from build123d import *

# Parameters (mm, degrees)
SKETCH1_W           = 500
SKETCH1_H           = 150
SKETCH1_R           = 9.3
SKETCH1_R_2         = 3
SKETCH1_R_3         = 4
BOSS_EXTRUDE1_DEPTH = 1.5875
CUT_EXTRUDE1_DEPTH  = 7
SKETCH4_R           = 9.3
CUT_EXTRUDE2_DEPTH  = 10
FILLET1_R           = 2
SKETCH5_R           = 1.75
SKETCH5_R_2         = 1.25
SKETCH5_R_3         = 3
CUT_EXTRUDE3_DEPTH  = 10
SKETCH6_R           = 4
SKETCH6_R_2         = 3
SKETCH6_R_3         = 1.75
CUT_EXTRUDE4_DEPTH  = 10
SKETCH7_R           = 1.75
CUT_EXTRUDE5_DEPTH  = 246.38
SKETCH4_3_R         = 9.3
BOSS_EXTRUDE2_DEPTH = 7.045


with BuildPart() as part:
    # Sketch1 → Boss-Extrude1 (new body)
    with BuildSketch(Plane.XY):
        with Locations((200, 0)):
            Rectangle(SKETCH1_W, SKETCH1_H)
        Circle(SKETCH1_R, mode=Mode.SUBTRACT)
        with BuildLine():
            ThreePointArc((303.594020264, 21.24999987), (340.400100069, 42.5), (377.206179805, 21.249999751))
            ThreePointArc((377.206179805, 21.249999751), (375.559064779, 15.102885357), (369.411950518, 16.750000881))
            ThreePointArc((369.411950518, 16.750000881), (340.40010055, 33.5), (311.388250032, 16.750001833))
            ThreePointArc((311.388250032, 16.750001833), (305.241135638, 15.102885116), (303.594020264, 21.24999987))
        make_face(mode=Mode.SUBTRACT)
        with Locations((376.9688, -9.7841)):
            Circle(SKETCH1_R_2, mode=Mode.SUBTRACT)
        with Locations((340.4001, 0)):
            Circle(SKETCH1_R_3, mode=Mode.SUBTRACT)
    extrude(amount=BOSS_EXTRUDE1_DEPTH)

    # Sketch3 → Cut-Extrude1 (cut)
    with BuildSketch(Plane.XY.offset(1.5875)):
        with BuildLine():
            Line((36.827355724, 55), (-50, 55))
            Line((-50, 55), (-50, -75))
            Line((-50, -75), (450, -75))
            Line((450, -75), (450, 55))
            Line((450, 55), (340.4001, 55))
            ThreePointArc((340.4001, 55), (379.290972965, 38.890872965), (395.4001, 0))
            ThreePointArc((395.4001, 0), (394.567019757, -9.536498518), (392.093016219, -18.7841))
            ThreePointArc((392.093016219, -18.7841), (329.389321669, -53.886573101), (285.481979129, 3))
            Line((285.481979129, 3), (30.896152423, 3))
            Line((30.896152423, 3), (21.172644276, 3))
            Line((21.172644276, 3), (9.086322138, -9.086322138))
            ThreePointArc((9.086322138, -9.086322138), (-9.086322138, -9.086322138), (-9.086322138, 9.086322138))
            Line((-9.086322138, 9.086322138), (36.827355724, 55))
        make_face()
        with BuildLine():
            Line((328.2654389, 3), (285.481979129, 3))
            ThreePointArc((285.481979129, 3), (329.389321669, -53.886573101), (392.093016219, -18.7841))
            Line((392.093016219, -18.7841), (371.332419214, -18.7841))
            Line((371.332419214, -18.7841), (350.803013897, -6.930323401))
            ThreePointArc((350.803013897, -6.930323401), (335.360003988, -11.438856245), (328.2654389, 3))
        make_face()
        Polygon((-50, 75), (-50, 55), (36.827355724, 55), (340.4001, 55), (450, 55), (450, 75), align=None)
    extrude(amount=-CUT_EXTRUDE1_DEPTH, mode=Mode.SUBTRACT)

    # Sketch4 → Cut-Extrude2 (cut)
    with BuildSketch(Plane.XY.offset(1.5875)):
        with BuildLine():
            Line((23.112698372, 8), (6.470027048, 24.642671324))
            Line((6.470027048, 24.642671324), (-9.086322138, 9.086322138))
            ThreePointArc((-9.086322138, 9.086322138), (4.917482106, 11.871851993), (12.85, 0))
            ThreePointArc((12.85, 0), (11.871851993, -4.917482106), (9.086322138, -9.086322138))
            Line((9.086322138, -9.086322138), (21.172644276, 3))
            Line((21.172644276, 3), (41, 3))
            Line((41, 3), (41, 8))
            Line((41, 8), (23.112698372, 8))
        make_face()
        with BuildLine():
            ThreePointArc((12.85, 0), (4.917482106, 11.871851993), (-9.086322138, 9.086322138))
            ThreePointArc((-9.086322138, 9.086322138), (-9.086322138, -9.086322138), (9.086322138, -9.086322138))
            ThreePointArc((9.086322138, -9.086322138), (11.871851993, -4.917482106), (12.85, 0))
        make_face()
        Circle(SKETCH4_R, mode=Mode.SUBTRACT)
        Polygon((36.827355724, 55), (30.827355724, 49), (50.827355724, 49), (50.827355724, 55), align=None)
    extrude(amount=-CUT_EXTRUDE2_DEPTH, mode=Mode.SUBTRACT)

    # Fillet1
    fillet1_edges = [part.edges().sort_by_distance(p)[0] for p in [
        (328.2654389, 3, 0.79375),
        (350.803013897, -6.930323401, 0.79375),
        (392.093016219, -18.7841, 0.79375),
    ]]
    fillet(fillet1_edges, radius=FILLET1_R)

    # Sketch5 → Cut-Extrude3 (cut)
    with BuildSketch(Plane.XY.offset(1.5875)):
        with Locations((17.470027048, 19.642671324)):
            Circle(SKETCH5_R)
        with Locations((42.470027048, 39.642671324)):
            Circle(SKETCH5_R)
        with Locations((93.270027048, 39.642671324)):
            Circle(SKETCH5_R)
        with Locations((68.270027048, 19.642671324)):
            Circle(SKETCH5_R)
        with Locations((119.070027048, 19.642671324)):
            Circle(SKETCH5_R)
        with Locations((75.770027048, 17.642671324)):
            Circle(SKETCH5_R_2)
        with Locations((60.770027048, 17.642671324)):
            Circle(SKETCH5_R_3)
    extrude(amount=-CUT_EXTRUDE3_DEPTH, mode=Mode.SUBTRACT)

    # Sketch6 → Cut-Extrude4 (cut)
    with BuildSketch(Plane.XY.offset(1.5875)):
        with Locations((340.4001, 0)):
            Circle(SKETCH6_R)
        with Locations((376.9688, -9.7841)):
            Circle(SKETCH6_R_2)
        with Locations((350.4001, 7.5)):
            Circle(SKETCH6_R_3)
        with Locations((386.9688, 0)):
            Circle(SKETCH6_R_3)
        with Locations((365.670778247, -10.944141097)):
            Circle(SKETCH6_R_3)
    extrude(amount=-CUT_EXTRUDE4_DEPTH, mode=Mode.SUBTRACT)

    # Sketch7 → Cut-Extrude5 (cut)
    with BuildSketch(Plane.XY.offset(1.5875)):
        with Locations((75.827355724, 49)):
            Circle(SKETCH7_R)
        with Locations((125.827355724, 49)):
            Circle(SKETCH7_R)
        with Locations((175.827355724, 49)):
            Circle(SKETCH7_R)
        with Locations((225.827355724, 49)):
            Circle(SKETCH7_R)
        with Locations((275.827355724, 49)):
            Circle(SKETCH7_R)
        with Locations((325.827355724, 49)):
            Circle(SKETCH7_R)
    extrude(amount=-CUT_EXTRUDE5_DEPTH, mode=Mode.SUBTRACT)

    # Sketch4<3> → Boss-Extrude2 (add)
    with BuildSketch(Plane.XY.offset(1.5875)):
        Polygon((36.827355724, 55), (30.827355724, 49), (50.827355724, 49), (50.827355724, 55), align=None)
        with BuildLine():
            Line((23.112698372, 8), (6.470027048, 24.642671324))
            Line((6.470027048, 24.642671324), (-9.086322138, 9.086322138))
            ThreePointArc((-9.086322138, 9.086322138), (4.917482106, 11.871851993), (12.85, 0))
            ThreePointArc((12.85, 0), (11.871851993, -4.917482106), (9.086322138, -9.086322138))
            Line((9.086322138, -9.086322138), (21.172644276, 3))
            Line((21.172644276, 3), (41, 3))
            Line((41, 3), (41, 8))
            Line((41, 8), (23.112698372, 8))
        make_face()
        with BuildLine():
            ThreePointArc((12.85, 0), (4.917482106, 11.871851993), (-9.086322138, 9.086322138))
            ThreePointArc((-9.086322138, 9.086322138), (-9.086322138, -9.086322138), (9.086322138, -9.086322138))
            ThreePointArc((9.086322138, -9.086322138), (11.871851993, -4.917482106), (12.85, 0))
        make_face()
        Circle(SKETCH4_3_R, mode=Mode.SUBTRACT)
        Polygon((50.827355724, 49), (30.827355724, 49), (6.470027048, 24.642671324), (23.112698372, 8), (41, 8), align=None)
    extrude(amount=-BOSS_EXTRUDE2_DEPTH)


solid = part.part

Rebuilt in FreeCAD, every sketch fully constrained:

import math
import FreeCAD as App
import Part
import Sketcher
from FreeCAD import Vector
Q = App.Units.Quantity


def edges_at(feature, points):
    """Names of the edges that pass closest to the given points."""
    edges = feature.Shape.Edges
    near = lambda p: min(range(len(edges)), key=lambda i: edges[i].distToShape(Part.Vertex(*p))[0])
    return sorted({f"Edge{near(p) + 1}" for p in points})


def add_polygon(sketch, points):
    """Adds a closed chain of lines whose ends are joined by coincident constraints."""
    first, n = sketch.GeometryCount, len(points)
    for a, b in zip(points, points[1:] + points[:1]):
        sketch.addGeometry(Part.LineSegment(App.Vector(*a, 0), App.Vector(*b, 0)), False)
    for i in range(n):
        sketch.addConstraint(Sketcher.Constraint("Coincident", first + i, 2, first + (i + 1) % n, 1))

doc = App.newDocument("Part")
body = doc.addObject("PartDesign::Body", "Body")

sketch1 = body.newObject("Sketcher::SketchObject", "Sketch")
sketch1.AttachmentSupport = (doc.getObject("XY_Plane"), [""])
sketch1.MapMode = "FlatFace"
add_polygon(sketch1, [(-50, 75), (-50, -75), (450, -75), (450, 75)])
sketch1.addGeometry(Part.Circle(Vector(0, 0, 0), Vector(0, 0, 1), 9.3), False)
sketch1.addGeometry(Part.Circle(Vector(376.9688, -9.7841, 0), Vector(0, 0, 1), 3), False)
sketch1.addGeometry(Part.Circle(Vector(340.4001, 0, 0), Vector(0, 0, 1), 4), False)
sketch1.addGeometry(Part.ArcOfCircle(Part.Circle(Vector(307.491135, 19, 0), Vector(0, 0, 1), 4.5), math.radians(150.000002), math.radians(330.000027)), False)
sketch1.addGeometry(Part.ArcOfCircle(Part.Circle(Vector(340.4001, 0, 0), Vector(0, 0, 1), 42.5), math.radians(30), math.radians(150)), False)
sketch1.addGeometry(Part.ArcOfCircle(Part.Circle(Vector(373.309065, 19, 0), Vector(0, 0, 1), 4.5), math.radians(-150.000013), math.radians(29.999996)), False)
sketch1.addGeometry(Part.ArcOfCircle(Part.Circle(Vector(340.4001, 0, 0), Vector(0, 0, 1), 33.5), math.radians(30.000002), math.radians(149.999996)), False)
sketch1.addConstraint([
    Sketcher.Constraint("Tangent", 7, 1, 8, 2),
    Sketcher.Constraint("Tangent", 8, 1, 9, 2),
    Sketcher.Constraint("Tangent", 9, 1, 10, 1),
    Sketcher.Constraint("Tangent", 10, 2, 7, 2),
    Sketcher.Constraint("Vertical", 0),
    Sketcher.Constraint("Horizontal", 1),
    Sketcher.Constraint("Vertical", 2),
    Sketcher.Constraint("Horizontal", 3),
    Sketcher.Constraint("Coincident", 4, 3, -1, 1),
    Sketcher.Constraint("Coincident", 8, 3, 6, 3),
    Sketcher.Constraint("Coincident", 10, 3, 6, 3),
    Sketcher.Constraint("PointOnObject", 6, 3, -1),
    Sketcher.Constraint("Horizontal", 7, 3, 9, 3),
    Sketcher.Constraint("Diameter", 5, Q("6 mm")),
    Sketcher.Constraint("Diameter", 6, Q("8 mm")),
    Sketcher.Constraint("Diameter", 4, Q("18.6 mm")),
    Sketcher.Constraint("Radius", 7, Q("4.5 mm")),
    Sketcher.Constraint("Radius", 8, Q("42.5 mm")),
    Sketcher.Constraint("DistanceX", 1, 1, 1, 2, Q("500 mm")),
    Sketcher.Constraint("DistanceY", 0, 2, 0, 1, Q("150 mm")),
    Sketcher.Constraint("DistanceY", -1, 1, 7, 3, Q("19 mm")),
    Sketcher.Constraint("DistanceX", 0, 2, -1, 1, Q("50 mm")),
    Sketcher.Constraint("DistanceY", 0, 2, -1, 1, Q("75 mm")),
    Sketcher.Constraint("DistanceX", -1, 1, 5, 3, Q("376.9688 mm")),
    Sketcher.Constraint("DistanceY", 5, 3, -1, 1, Q("9.7841 mm")),
    Sketcher.Constraint("DistanceX", -1, 1, 6, 3, Q("340.4001 mm")),
])
pad1 = body.newObject("PartDesign::Pad", "Pad")
pad1.Profile = sketch1
pad1.Length = 1.5875

sketch2 = body.newObject("Sketcher::SketchObject", "Sketch001")
sketch2.AttachmentSupport = (doc.getObject("XY_Plane"), [""])
sketch2.MapMode = "FlatFace"
sketch2.AttachmentOffset = App.Placement(Vector(0, 0, 1.5875), App.Rotation())
add_polygon(sketch2, [(-50, -75), (450, -75), (450, 75), (-50, 75)])
sketch2.addGeometry(Part.ArcOfCircle(Part.Circle(Vector(340.4001, 0, 0), Vector(0, 0, 1), 55), math.radians(0), math.radians(90)), False)
sketch2.addGeometry(Part.ArcOfCircle(Part.Circle(Vector(340.4001, 0, 0), Vector(0, 0, 1), 55), math.radians(-19.970062), math.radians(0)), False)
sketch2.addGeometry(Part.LineSegment(Vector(392.093016, -18.7841, 0), Vector(371.332419, -18.7841, 0)), False)
sketch2.addGeometry(Part.LineSegment(Vector(371.332419, -18.7841, 0), Vector(350.803014, -6.930323, 0)), False)
sketch2.addGeometry(Part.ArcOfCircle(Part.Circle(Vector(340.4001, 0, 0), Vector(0, 0, 1), 12.5), math.radians(166.11346), math.radians(326.328821)), False)
sketch2.addGeometry(Part.LineSegment(Vector(328.265439, 3, 0), Vector(21.172644, 3, 0)), False)
sketch2.addGeometry(Part.LineSegment(Vector(21.172644, 3, 0), Vector(9.086322, -9.086322, 0)), False)
sketch2.addGeometry(Part.ArcOfCircle(Part.Circle(Vector(0, 0, 0), Vector(0, 0, 1), 12.85), math.radians(135), math.radians(315)), False)
sketch2.addGeometry(Part.LineSegment(Vector(-9.086322, 9.086322, 0), Vector(36.827356, 55, 0)), False)
sketch2.addGeometry(Part.LineSegment(Vector(36.827356, 55, 0), Vector(340.4001, 55, 0)), False)
sketch2.addConstraint([
    Sketcher.Constraint("Tangent", 4, 1, 5, 2),
    Sketcher.Constraint("Coincident", 5, 1, 6, 1),
    Sketcher.Constraint("Coincident", 6, 2, 7, 1),
    Sketcher.Constraint("Coincident", 7, 2, 8, 2),
    Sketcher.Constraint("Coincident", 8, 1, 9, 1),
    Sketcher.Constraint("Coincident", 9, 2, 10, 1),
    Sketcher.Constraint("Tangent", 10, 2, 11, 2),
    Sketcher.Constraint("Tangent", 11, 1, 12, 1),
    Sketcher.Constraint("Coincident", 12, 2, 13, 1),
    Sketcher.Constraint("Tangent", 13, 2, 4, 2),
    Sketcher.Constraint("Horizontal", 0),
    Sketcher.Constraint("Vertical", 1),
    Sketcher.Constraint("Horizontal", 2),
    Sketcher.Constraint("Vertical", 3),
    Sketcher.Constraint("Horizontal", 6),
    Sketcher.Constraint("Horizontal", 9),
    Sketcher.Constraint("Horizontal", 13),
    Sketcher.Constraint("Coincident", 11, 3, -1, 1),
    Sketcher.Constraint("Coincident", 8, 3, 4, 3),
    Sketcher.Constraint("Equal", 4, 5),
    Sketcher.Constraint("PointOnObject", 4, 3, -1),
    Sketcher.Constraint("PointOnObject", 4, 1, -1),
    Sketcher.Constraint("Parallel", 10, 12),
    Sketcher.Constraint("Radius", 4, Q("55 mm")),
    Sketcher.Constraint("Radius", 8, Q("12.5 mm")),
    Sketcher.Constraint("DistanceX", 0, 1, 0, 2, Q("500 mm")),
    Sketcher.Constraint("DistanceY", 1, 1, 1, 2, Q("150 mm")),
    Sketcher.Constraint("Angle", 10, Q("-135 deg")),
    Sketcher.Constraint("Radius", 11, Q("12.85 mm")),
    Sketcher.Constraint("DistanceX", -1, 1, 0, 2, Q("450 mm")),
    Sketcher.Constraint("DistanceY", 0, 2, -1, 1, Q("75 mm")),
    Sketcher.Constraint("DistanceY", -1, 1, 8, 1, Q("3 mm")),
    Sketcher.Constraint("DistanceX", -1, 1, 4, 3, Q("340.4001 mm")),
    Sketcher.Constraint("DistanceY", 5, 1, -1, 1, Q("18.7841 mm")),
    Sketcher.Constraint("DistanceX", 6, 2, 6, 1, Q("20.760597 mm")),
    Sketcher.Constraint("Distance", 7, Q("23.705875 mm")),
])
pocket1 = body.newObject("PartDesign::Pocket", "Pocket")
pocket1.Profile = sketch2
pocket1.Length = 7

sketch3 = body.newObject("Sketcher::SketchObject", "Sketch002")
sketch3.AttachmentSupport = (doc.getObject("XY_Plane"), [""])
sketch3.MapMode = "FlatFace"
sketch3.AttachmentOffset = App.Placement(Vector(0, 0, 1.5875), App.Rotation())
sketch3.addGeometry(Part.LineSegment(Vector(23.112698, 8, 0), Vector(6.470027, 24.642671, 0)), False)
sketch3.addGeometry(Part.LineSegment(Vector(6.470027, 24.642671, 0), Vector(-9.086322, 9.086322, 0)), False)
sketch3.addGeometry(Part.ArcOfCircle(Part.Circle(Vector(0, 0, 0), Vector(0, 0, 1), 12.85), math.radians(135), math.radians(315)), False)
sketch3.addGeometry(Part.LineSegment(Vector(9.086322, -9.086322, 0), Vector(21.172644, 3, 0)), False)
sketch3.addGeometry(Part.LineSegment(Vector(21.172644, 3, 0), Vector(41, 3, 0)), False)
sketch3.addGeometry(Part.LineSegment(Vector(41, 3, 0), Vector(41, 8, 0)), False)
sketch3.addGeometry(Part.LineSegment(Vector(41, 8, 0), Vector(23.112698, 8, 0)), False)
sketch3.addGeometry(Part.Circle(Vector(0, 0, 0), Vector(0, 0, 1), 9.3), False)
add_polygon(sketch3, [(36.827356, 55), (30.827356, 49), (50.827356, 49), (50.827356, 55)])
sketch3.addConstraint([
    Sketcher.Constraint("Coincident", 0, 2, 1, 1),
    Sketcher.Constraint("Tangent", 1, 2, 2, 1),
    Sketcher.Constraint("Tangent", 2, 2, 3, 1),
    Sketcher.Constraint("Coincident", 3, 2, 4, 1),
    Sketcher.Constraint("Coincident", 4, 2, 5, 1),
    Sketcher.Constraint("Coincident", 5, 2, 6, 1),
    Sketcher.Constraint("Coincident", 6, 2, 0, 1),
    Sketcher.Constraint("Horizontal", 4),
    Sketcher.Constraint("Vertical", 5),
    Sketcher.Constraint("Horizontal", 6),
    Sketcher.Constraint("Horizontal", 9),
    Sketcher.Constraint("Vertical", 10),
    Sketcher.Constraint("Horizontal", 11),
    Sketcher.Constraint("Coincident", 2, 3, -1, 1),
    Sketcher.Constraint("Coincident", 7, 3, -1, 1),
    Sketcher.Constraint("Perpendicular", 0, 1),
    Sketcher.Constraint("Parallel", 1, 3),
    Sketcher.Constraint("Parallel", 3, 8),
    Sketcher.Constraint("Diameter", 7, Q("18.6 mm")),
    Sketcher.Constraint("DistanceX", 9, 1, 9, 2, Q("20 mm")),
    Sketcher.Constraint("DistanceX", 11, 2, 11, 1, Q("14 mm")),
    Sketcher.Constraint("DistanceY", 5, 1, 5, 2, Q("5 mm")),
    Sketcher.Constraint("DistanceY", 10, 1, 10, 2, Q("6 mm")),
    Sketcher.Constraint("Radius", 2, Q("12.85 mm")),
    Sketcher.Constraint("Distance", 1, Q("22 mm")),
    Sketcher.Constraint("DistanceY", -1, 1, 3, 2, Q("3 mm")),
    Sketcher.Constraint("DistanceX", -1, 1, 4, 2, Q("41 mm")),
    Sketcher.Constraint("DistanceY", -1, 1, 8, 2, Q("49 mm")),
    Sketcher.Constraint("DistanceX", 0, 2, 8, 2, Q("24.357329 mm")),
])
pocket2 = body.newObject("PartDesign::Pocket", "Pocket001")
pocket2.Profile = sketch3
pocket2.Length = 10
doc.recompute()

fillet = body.newObject("PartDesign::Fillet", "Fillet")
fillet.Base = (pocket2, edges_at(pocket2, [(328.265, 3, 0.794), (350.803, -6.93, 0.794), (392.093, -18.784, 0.794)]))
fillet.Radius = 2

sketch4 = body.newObject("Sketcher::SketchObject", "Sketch003")
sketch4.AttachmentSupport = (doc.getObject("XY_Plane"), [""])
sketch4.MapMode = "FlatFace"
sketch4.AttachmentOffset = App.Placement(Vector(0, 0, 1.5875), App.Rotation())
sketch4.addGeometry([
    Part.Circle(Vector(17.470027, 19.642671, 0), Vector(0, 0, 1), 1.75),
    Part.Circle(Vector(42.470027, 39.642671, 0), Vector(0, 0, 1), 1.75),
    Part.Circle(Vector(93.270027, 39.642671, 0), Vector(0, 0, 1), 1.75),
    Part.Circle(Vector(68.270027, 19.642671, 0), Vector(0, 0, 1), 1.75),
    Part.Circle(Vector(119.070027, 19.642671, 0), Vector(0, 0, 1), 1.75),
    Part.Circle(Vector(75.770027, 17.642671, 0), Vector(0, 0, 1), 1.25),
    Part.Circle(Vector(60.770027, 17.642671, 0), Vector(0, 0, 1), 3),
], False)
sketch4.addConstraint([
    Sketcher.Constraint("Equal", 0, 1),
    Sketcher.Constraint("Equal", 1, 2),
    Sketcher.Constraint("Equal", 2, 3),
    Sketcher.Constraint("Equal", 3, 4),
    Sketcher.Constraint("Horizontal", 1, 3, 2, 3),
    Sketcher.Constraint("Horizontal", 0, 3, 3, 3),
    Sketcher.Constraint("Horizontal", 3, 3, 4, 3),
    Sketcher.Constraint("Horizontal", 5, 3, 6, 3),
    Sketcher.Constraint("Diameter", 6, Q("6 mm")),
    Sketcher.Constraint("Diameter", 0, Q("3.5 mm")),
    Sketcher.Constraint("Diameter", 5, Q("2.5 mm")),
    Sketcher.Constraint("DistanceX", 0, 3, 1, 3, Q("25 mm")),
    Sketcher.Constraint("DistanceY", 0, 3, 1, 3, Q("20 mm")),
    Sketcher.Constraint("DistanceX", 3, 3, 2, 3, Q("25 mm")),
    Sketcher.Constraint("DistanceY", 5, 3, 3, 3, Q("2 mm")),
    Sketcher.Constraint("DistanceX", 6, 3, 5, 3, Q("15 mm")),
    Sketcher.Constraint("DistanceX", 1, 3, 2, 3, Q("50.8 mm")),
    Sketcher.Constraint("DistanceX", 2, 3, 4, 3, Q("25.8 mm")),
    Sketcher.Constraint("DistanceX", 3, 3, 5, 3, Q("7.5 mm")),
    Sketcher.Constraint("DistanceY", -1, 1, 0, 3, Q("19.642671 mm")),
    Sketcher.Constraint("DistanceX", -1, 1, 0, 3, Q("17.470027 mm")),
])
pocket3 = body.newObject("PartDesign::Pocket", "Pocket002")
pocket3.Profile = sketch4
pocket3.Length = 10

sketch5 = body.newObject("Sketcher::SketchObject", "Sketch004")
sketch5.AttachmentSupport = (doc.getObject("XY_Plane"), [""])
sketch5.MapMode = "FlatFace"
sketch5.AttachmentOffset = App.Placement(Vector(0, 0, 1.5875), App.Rotation())
sketch5.addGeometry([
    Part.Circle(Vector(340.4001, 0, 0), Vector(0, 0, 1), 4),
    Part.Circle(Vector(376.9688, -9.7841, 0), Vector(0, 0, 1), 3),
    Part.Circle(Vector(350.4001, 7.5, 0), Vector(0, 0, 1), 1.75),
    Part.Circle(Vector(386.9688, 0, 0), Vector(0, 0, 1), 1.75),
    Part.Circle(Vector(365.670778, -10.944141, 0), Vector(0, 0, 1), 1.75),
], False)
sketch5.addConstraint([
    Sketcher.Constraint("Equal", 2, 3),
    Sketcher.Constraint("Equal", 3, 4),
    Sketcher.Constraint("PointOnObject", 0, 3, -1),
    Sketcher.Constraint("PointOnObject", 3, 3, -1),
    Sketcher.Constraint("Diameter", 0, Q("8 mm")),
    Sketcher.Constraint("Diameter", 1, Q("6 mm")),
    Sketcher.Constraint("Diameter", 2, Q("3.5 mm")),
    Sketcher.Constraint("DistanceX", 0, 3, 2, 3, Q("10 mm")),
    Sketcher.Constraint("DistanceX", 1, 3, 3, 3, Q("10 mm")),
    Sketcher.Constraint("DistanceY", -1, 1, 2, 3, Q("7.5 mm")),
    Sketcher.Constraint("DistanceX", -1, 1, 0, 3, Q("340.4001 mm")),
    Sketcher.Constraint("DistanceX", -1, 1, 1, 3, Q("376.9688 mm")),
    Sketcher.Constraint("DistanceY", 1, 3, -1, 1, Q("9.7841 mm")),
    Sketcher.Constraint("DistanceX", -1, 1, 4, 3, Q("365.670778 mm")),
    Sketcher.Constraint("DistanceY", 4, 3, -1, 1, Q("10.944141 mm")),
])
pocket4 = body.newObject("PartDesign::Pocket", "Pocket003")
pocket4.Profile = sketch5
pocket4.Length = 10

sketch6 = body.newObject("Sketcher::SketchObject", "Sketch005")
sketch6.AttachmentSupport = (doc.getObject("XY_Plane"), [""])
sketch6.MapMode = "FlatFace"
sketch6.AttachmentOffset = App.Placement(Vector(0, 0, 1.5875), App.Rotation())
sketch6.addGeometry([
    Part.Circle(Vector(75.827356, 49, 0), Vector(0, 0, 1), 1.75),
    Part.Circle(Vector(125.827356, 49, 0), Vector(0, 0, 1), 1.75),
    Part.Circle(Vector(175.827356, 49, 0), Vector(0, 0, 1), 1.75),
    Part.Circle(Vector(225.827356, 49, 0), Vector(0, 0, 1), 1.75),
    Part.Circle(Vector(275.827356, 49, 0), Vector(0, 0, 1), 1.75),
    Part.Circle(Vector(325.827356, 49, 0), Vector(0, 0, 1), 1.75),
], False)
sketch6.addConstraint([
    Sketcher.Constraint("Equal", 0, 1),
    Sketcher.Constraint("Equal", 1, 2),
    Sketcher.Constraint("Equal", 2, 3),
    Sketcher.Constraint("Equal", 3, 4),
    Sketcher.Constraint("Equal", 4, 5),
    Sketcher.Constraint("Horizontal", 0, 3, 1, 3),
    Sketcher.Constraint("Horizontal", 1, 3, 2, 3),
    Sketcher.Constraint("Horizontal", 2, 3, 3, 3),
    Sketcher.Constraint("Horizontal", 3, 3, 4, 3),
    Sketcher.Constraint("Horizontal", 4, 3, 5, 3),
    Sketcher.Constraint("Diameter", 0, Q("3.5 mm")),
    Sketcher.Constraint("DistanceY", -1, 1, 0, 3, Q("49 mm")),
    Sketcher.Constraint("DistanceX", 0, 3, 1, 3, Q("50 mm")),
    Sketcher.Constraint("DistanceX", 1, 3, 2, 3, Q("50 mm")),
    Sketcher.Constraint("DistanceX", 2, 3, 3, 3, Q("50 mm")),
    Sketcher.Constraint("DistanceX", 3, 3, 4, 3, Q("50 mm")),
    Sketcher.Constraint("DistanceX", 4, 3, 5, 3, Q("50 mm")),
    Sketcher.Constraint("DistanceX", -1, 1, 0, 3, Q("75.827356 mm")),
])
pocket5 = body.newObject("PartDesign::Pocket", "Pocket004")
pocket5.Profile = sketch6
pocket5.Length = 246.38

sketch7 = body.newObject("Sketcher::SketchObject", "Sketch006")
sketch7.AttachmentSupport = (doc.getObject("XY_Plane"), [""])
sketch7.MapMode = "FlatFace"
sketch7.AttachmentOffset = App.Placement(Vector(0, 0, 1.5875), App.Rotation())
sketch7.addGeometry([
    Part.LineSegment(Vector(36.827356, 55, 0), Vector(-9.086322, 9.086322, 0)),
    Part.ArcOfCircle(Part.Circle(Vector(0, 0, 0), Vector(0, 0, 1), 12.85), math.radians(135), math.radians(315)),
    Part.LineSegment(Vector(9.086322, -9.086322, 0), Vector(21.172644, 3, 0)),
    Part.LineSegment(Vector(21.172644, 3, 0), Vector(41, 3, 0)),
    Part.LineSegment(Vector(41, 3, 0), Vector(41, 8, 0)),
    Part.LineSegment(Vector(41, 8, 0), Vector(50.827356, 49, 0)),
    Part.LineSegment(Vector(50.827356, 49, 0), Vector(50.827356, 55, 0)),
    Part.LineSegment(Vector(50.827356, 55, 0), Vector(36.827356, 55, 0)),
    Part.Circle(Vector(0, 0, 0), Vector(0, 0, 1), 9.3),
], False)
sketch7.addConstraint([
    Sketcher.Constraint("Tangent", 0, 2, 1, 1),
    Sketcher.Constraint("Tangent", 1, 2, 2, 1),
    Sketcher.Constraint("Coincident", 2, 2, 3, 1),
    Sketcher.Constraint("Coincident", 3, 2, 4, 1),
    Sketcher.Constraint("Coincident", 4, 2, 5, 1),
    Sketcher.Constraint("Coincident", 5, 2, 6, 1),
    Sketcher.Constraint("Coincident", 6, 2, 7, 1),
    Sketcher.Constraint("Coincident", 7, 2, 0, 1),
    Sketcher.Constraint("Horizontal", 3),
    Sketcher.Constraint("Vertical", 4),
    Sketcher.Constraint("Vertical", 6),
    Sketcher.Constraint("Horizontal", 7),
    Sketcher.Constraint("Coincident", 1, 3, -1, 1),
    Sketcher.Constraint("Coincident", 8, 3, -1, 1),
    Sketcher.Constraint("Parallel", 0, 2),
    Sketcher.Constraint("Diameter", 8, Q("18.6 mm")),
    Sketcher.Constraint("DistanceX", 7, 2, 7, 1, Q("14 mm")),
    Sketcher.Constraint("DistanceY", 4, 1, 4, 2, Q("5 mm")),
    Sketcher.Constraint("DistanceY", 6, 1, 6, 2, Q("6 mm")),
    Sketcher.Constraint("Angle", 0, Q("-135 deg")),
    Sketcher.Constraint("Radius", 1, Q("12.85 mm")),
    Sketcher.Constraint("DistanceY", -1, 1, 2, 2, Q("3 mm")),
    Sketcher.Constraint("DistanceX", -1, 1, 3, 2, Q("41 mm")),
    Sketcher.Constraint("DistanceY", -1, 1, 5, 2, Q("49 mm")),
])
pad2 = body.newObject("PartDesign::Pad", "Pad001")
pad2.Profile = sketch7
pad2.Length = 7.045
pad2.Reversed = True

doc.recompute()
